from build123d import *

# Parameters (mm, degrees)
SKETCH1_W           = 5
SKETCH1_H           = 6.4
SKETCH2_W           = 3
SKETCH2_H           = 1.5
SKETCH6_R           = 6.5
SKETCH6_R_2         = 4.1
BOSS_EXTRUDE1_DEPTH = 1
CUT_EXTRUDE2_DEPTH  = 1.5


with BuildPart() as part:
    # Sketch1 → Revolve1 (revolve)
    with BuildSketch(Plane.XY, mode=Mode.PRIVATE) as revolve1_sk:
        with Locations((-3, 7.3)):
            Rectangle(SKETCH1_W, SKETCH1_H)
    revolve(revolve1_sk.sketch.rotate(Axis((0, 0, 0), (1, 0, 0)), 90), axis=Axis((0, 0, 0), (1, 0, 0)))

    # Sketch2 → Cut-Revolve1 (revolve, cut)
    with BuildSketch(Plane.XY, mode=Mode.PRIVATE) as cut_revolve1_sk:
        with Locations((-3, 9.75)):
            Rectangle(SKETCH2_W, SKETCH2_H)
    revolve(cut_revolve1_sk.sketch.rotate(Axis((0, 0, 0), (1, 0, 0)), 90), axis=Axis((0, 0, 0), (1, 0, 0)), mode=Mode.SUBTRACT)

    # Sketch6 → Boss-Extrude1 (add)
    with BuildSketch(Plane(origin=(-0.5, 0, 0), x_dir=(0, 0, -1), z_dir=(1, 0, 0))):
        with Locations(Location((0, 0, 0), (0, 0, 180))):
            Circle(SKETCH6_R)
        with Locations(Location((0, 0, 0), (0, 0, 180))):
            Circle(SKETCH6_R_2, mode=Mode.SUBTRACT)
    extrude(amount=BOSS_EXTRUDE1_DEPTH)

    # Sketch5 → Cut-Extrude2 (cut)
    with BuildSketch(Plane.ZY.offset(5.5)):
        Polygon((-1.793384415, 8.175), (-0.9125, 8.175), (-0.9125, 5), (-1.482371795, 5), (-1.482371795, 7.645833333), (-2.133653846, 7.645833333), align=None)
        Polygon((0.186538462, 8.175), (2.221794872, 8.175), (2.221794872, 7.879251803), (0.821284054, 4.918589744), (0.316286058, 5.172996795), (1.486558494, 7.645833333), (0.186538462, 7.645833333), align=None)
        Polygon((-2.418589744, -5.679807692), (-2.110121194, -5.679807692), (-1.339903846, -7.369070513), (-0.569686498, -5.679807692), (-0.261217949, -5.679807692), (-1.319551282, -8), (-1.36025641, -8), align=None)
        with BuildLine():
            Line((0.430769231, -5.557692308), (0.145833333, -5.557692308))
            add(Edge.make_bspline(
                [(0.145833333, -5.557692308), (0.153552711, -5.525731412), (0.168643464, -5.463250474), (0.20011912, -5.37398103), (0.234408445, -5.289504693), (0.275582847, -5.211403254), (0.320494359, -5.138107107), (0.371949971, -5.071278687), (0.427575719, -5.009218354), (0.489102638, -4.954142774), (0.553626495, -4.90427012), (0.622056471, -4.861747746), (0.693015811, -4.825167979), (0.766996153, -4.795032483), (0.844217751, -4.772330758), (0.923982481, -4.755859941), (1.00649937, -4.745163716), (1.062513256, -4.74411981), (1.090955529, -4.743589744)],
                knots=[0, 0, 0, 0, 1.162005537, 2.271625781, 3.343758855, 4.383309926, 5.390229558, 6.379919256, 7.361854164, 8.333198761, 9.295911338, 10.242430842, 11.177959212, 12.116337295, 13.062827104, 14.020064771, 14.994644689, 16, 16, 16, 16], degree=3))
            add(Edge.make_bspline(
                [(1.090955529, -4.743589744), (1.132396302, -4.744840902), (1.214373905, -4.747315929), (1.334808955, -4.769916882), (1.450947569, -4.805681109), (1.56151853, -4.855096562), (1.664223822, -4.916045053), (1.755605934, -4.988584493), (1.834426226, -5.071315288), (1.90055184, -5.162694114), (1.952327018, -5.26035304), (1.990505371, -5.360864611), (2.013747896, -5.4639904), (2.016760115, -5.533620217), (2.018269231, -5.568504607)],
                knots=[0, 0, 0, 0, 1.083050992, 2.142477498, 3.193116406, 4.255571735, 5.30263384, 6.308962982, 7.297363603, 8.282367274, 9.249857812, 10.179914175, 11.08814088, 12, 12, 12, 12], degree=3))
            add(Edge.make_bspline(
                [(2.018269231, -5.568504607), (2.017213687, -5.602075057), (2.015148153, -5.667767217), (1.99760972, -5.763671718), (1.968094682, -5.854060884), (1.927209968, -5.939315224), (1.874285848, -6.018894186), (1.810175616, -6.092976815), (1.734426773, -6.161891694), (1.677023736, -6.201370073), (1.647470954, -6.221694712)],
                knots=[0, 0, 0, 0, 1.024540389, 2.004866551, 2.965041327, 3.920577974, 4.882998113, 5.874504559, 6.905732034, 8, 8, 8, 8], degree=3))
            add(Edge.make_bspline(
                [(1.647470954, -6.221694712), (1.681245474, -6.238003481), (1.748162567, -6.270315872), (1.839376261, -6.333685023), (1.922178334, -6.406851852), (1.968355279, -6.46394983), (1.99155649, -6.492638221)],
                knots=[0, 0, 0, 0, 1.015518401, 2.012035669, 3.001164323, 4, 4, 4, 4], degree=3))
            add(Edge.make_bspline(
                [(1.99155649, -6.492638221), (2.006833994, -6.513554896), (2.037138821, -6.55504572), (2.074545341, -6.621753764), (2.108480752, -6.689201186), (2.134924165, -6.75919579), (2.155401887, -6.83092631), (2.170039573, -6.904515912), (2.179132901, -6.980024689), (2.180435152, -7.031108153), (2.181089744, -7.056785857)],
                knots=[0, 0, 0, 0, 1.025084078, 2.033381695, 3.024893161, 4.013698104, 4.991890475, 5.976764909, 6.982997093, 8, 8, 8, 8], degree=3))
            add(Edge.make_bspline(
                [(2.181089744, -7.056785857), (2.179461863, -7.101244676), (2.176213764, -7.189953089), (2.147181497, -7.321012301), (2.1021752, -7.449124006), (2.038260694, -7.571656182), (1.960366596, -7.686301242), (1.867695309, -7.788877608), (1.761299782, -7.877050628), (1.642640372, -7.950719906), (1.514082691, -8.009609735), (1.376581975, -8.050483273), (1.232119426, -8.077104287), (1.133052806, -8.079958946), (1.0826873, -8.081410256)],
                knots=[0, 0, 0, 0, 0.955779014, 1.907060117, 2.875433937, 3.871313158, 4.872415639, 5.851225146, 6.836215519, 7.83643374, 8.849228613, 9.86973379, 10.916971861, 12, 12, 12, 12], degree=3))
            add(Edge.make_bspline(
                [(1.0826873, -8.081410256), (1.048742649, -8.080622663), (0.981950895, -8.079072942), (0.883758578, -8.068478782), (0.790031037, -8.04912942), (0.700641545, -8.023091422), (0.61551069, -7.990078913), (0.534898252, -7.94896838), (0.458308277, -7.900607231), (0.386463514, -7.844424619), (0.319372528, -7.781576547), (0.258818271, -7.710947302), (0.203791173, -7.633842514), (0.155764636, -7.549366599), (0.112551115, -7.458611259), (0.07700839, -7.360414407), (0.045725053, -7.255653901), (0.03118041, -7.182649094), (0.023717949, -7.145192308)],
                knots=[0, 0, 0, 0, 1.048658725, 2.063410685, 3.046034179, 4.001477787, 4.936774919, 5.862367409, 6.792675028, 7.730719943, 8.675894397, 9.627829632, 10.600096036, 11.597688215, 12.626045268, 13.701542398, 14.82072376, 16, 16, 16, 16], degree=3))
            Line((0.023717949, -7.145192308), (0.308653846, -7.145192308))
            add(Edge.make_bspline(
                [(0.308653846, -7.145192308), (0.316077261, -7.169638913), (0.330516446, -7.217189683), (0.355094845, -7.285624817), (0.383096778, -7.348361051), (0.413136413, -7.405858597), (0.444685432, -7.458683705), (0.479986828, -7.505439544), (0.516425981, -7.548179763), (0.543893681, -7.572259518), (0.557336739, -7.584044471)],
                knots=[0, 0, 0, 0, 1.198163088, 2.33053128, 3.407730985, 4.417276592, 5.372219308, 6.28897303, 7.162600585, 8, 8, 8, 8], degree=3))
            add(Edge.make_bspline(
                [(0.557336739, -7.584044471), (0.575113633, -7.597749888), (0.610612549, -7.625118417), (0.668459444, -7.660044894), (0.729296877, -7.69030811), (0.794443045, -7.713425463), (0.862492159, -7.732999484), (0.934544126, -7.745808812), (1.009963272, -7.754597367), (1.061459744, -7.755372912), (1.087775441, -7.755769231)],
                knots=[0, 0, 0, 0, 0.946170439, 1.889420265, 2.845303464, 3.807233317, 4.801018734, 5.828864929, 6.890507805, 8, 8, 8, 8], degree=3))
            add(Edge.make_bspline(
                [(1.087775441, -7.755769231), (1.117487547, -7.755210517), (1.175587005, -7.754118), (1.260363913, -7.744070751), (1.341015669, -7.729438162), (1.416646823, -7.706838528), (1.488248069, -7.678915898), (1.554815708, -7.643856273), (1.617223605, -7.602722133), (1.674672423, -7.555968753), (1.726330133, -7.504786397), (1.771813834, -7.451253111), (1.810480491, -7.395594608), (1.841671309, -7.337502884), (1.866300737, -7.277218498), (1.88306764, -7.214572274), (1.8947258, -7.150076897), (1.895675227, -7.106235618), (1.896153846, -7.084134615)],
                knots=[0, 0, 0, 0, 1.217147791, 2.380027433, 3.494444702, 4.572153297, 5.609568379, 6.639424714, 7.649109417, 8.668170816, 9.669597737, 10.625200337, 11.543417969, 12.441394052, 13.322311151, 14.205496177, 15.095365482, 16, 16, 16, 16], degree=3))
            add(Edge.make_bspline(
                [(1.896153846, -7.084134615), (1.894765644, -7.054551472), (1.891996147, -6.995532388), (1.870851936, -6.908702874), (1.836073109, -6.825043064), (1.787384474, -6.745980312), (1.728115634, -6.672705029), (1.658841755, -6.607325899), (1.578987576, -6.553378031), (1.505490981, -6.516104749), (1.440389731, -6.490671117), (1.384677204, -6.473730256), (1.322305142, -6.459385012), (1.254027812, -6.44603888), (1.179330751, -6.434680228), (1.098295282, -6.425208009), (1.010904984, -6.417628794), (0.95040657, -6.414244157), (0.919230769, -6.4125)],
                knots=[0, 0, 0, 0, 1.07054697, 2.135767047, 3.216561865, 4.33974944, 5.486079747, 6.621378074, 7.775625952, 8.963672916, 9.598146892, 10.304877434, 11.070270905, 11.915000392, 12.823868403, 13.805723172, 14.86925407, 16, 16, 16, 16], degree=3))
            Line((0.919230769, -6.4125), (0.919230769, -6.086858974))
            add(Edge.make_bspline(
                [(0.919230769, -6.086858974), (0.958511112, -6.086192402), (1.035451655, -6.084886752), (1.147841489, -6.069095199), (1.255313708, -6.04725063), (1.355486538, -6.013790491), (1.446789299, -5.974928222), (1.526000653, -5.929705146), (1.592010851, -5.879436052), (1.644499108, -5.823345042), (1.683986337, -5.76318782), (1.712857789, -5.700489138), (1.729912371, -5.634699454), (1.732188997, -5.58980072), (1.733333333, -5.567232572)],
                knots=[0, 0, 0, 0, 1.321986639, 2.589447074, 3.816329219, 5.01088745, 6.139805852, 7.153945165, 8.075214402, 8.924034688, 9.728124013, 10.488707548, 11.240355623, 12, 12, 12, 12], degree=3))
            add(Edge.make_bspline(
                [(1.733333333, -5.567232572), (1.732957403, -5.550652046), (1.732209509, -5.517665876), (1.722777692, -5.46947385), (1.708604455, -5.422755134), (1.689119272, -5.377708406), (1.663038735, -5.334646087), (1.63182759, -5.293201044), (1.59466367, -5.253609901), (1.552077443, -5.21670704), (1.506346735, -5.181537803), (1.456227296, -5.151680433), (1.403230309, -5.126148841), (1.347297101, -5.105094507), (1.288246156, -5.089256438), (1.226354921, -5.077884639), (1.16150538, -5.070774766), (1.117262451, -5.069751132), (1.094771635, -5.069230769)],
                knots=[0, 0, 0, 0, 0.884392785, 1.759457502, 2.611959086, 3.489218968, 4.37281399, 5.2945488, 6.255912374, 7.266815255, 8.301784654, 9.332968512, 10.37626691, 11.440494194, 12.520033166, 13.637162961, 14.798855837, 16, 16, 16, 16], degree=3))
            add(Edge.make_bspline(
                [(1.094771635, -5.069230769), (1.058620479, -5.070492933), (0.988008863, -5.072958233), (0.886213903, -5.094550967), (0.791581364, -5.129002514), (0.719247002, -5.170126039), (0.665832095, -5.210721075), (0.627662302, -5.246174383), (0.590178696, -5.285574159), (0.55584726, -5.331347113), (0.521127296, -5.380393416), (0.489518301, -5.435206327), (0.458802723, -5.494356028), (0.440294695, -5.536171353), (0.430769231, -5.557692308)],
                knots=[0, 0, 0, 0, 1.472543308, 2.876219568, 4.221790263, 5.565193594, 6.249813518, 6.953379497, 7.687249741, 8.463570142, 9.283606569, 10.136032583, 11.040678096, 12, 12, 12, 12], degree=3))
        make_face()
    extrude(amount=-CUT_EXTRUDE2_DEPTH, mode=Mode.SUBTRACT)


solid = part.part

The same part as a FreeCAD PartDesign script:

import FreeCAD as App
import Part
import Sketcher

doc = App.newDocument("Part")
params = doc.addObject("Spreadsheet::Sheet", "Params")
for row, (alias, value) in enumerate([
    ("sketch1_width", "5 mm"),
    ("sketch1_height", "6.4 mm"),
    ("revolution_angle", "360 deg"),
    ("sketch2_width", "3 mm"),
    ("sketch2_height", "1.5 mm"),
    ("groove_angle", "360 deg"),
    ("sketch3_diameter", "13 mm"),
    ("sketch3_diameter2", "8.2 mm"),
    ("pad1_length", "1 mm"),
    ("pocket1_length", "1.5 mm"),
], start=1):
    params.set(f"A{row}", alias)
    params.set(f"B{row}", "=" + value)
    params.setAlias(f"B{row}", alias)

body = doc.addObject("PartDesign::Body", "Body")

sketch1 = doc.addObject("Sketcher::SketchObject", "Sketch")
body.addObject(sketch1)
sketch1.AttachmentSupport = (doc.XY_Plane, [""])
sketch1.MapMode = "FlatFace"
sketch1.addGeometry([
    Part.LineSegment(App.Vector(-6, 10, 0), App.Vector(-6, 4, 0)),
    Part.LineSegment(App.Vector(-6, 4, 0), App.Vector(0, 4, 0)),
    Part.LineSegment(App.Vector(0, 4, 0), App.Vector(0, 10, 0)),
    Part.LineSegment(App.Vector(0, 10, 0), App.Vector(-6, 10, 0)),
], False)
sketch1.addConstraint([
    Sketcher.Constraint("Coincident", 0, 2, 1, 1),
    Sketcher.Constraint("Coincident", 1, 2, 2, 1),
    Sketcher.Constraint("Coincident", 2, 2, 3, 1),
    Sketcher.Constraint("Coincident", 3, 2, 0, 1),
    Sketcher.Constraint("Vertical", 0),
    Sketcher.Constraint("Horizontal", 1),
    Sketcher.Constraint("Vertical", 2),
    Sketcher.Constraint("Horizontal", 3),
    Sketcher.Constraint("DistanceX", 1, 1, 1, 2, 5.0),
    Sketcher.Constraint("DistanceY", 0, 2, 0, 1, 6.4),
    Sketcher.Constraint("DistanceX", 0, 2, -1, 1, 5.5),
    Sketcher.Constraint("DistanceY", -1, 1, 0, 2, 4.1),
])
sketch1.setExpression("Constraints[8]", "Params.sketch1_width")
sketch1.setExpression("Constraints[9]", "Params.sketch1_height")
revolution = doc.addObject("PartDesign::Revolution", "Revolution")
body.addObject(revolution)
revolution.Profile = sketch1
revolution.ReferenceAxis = (sketch1, ["H_Axis"])
revolution.setExpression("Angle", "Params.revolution_angle")

sketch2 = doc.addObject("Sketcher::SketchObject", "Sketch001")
body.addObject(sketch2)
sketch2.AttachmentSupport = (doc.XY_Plane, [""])
sketch2.MapMode = "FlatFace"
sketch2.addGeometry([
    Part.LineSegment(App.Vector(-4.5, 10.5, 0), App.Vector(-4.5, 9, 0)),
    Part.LineSegment(App.Vector(-4.5, 9, 0), App.Vector(-1.5, 9, 0)),
    Part.LineSegment(App.Vector(-1.5, 9, 0), App.Vector(-1.5, 10.5, 0)),
    Part.LineSegment(App.Vector(-1.5, 10.5, 0), App.Vector(-4.5, 10.5, 0)),
], False)
sketch2.addConstraint([
    Sketcher.Constraint("Coincident", 0, 2, 1, 1),
    Sketcher.Constraint("Coincident", 1, 2, 2, 1),
    Sketcher.Constraint("Coincident", 2, 2, 3, 1),
    Sketcher.Constraint("Coincident", 3, 2, 0, 1),
    Sketcher.Constraint("Vertical", 0),
    Sketcher.Constraint("Horizontal", 1),
    Sketcher.Constraint("Vertical", 2),
    Sketcher.Constraint("Horizontal", 3),
    Sketcher.Constraint("DistanceX", 1, 1, 1, 2, 3.0),
    Sketcher.Constraint("DistanceY", 0, 2, 0, 1, 1.5),
    Sketcher.Constraint("DistanceY", -1, 1, 0, 2, 9.0),
    Sketcher.Constraint("DistanceX", 0, 2, -1, 1, 4.5),
])
sketch2.setExpression("Constraints[8]", "Params.sketch2_width")
sketch2.setExpression("Constraints[9]", "Params.sketch2_height")
groove = doc.addObject("PartDesign::Groove", "Groove")
body.addObject(groove)
groove.Profile = sketch2
groove.ReferenceAxis = (sketch2, ["H_Axis"])
groove.setExpression("Angle", "Params.groove_angle")

sketch3 = doc.addObject("Sketcher::SketchObject", "Sketch002")
body.addObject(sketch3)
sketch3.AttachmentSupport = (doc.YZ_Plane, [""])
sketch3.MapMode = "FlatFace"
sketch3.AttachmentOffset = App.Placement(App.Vector(0, 0, -0.5), App.Rotation())
sketch3.addGeometry([
    Part.Circle(App.Vector(0, 0, 0), App.Vector(0, 0, 1), 6.5),
    Part.Circle(App.Vector(0, 0, 0), App.Vector(0, 0, 1), 4.1),
], False)
sketch3.addConstraint([
    Sketcher.Constraint("Coincident", 0, 3, -1, 1),
    Sketcher.Constraint("Coincident", 1, 3, -1, 1),
    Sketcher.Constraint("Diameter", 0, 13.0),
    Sketcher.Constraint("Diameter", 1, 8.2),
])
sketch3.setExpression("Constraints[2]", "Params.sketch3_diameter")
sketch3.setExpression("Constraints[3]", "Params.sketch3_diameter2")
pad1 = doc.addObject("PartDesign::Pad", "Pad")
body.addObject(pad1)
pad1.Profile = sketch3
pad1.setExpression("Length", "Params.pad1_length")

sketch4 = doc.addObject("Sketcher::SketchObject", "Sketch003")
body.addObject(sketch4)
sketch4.AttachmentSupport = (doc.YZ_Plane, [""])
sketch4.MapMode = "FlatFace"
sketch4.AttachmentOffset = App.Placement(App.Vector(0, 0, -5.5), App.Rotation())
sketch4.addGeometry([
    Part.LineSegment(App.Vector(8.175, -0.9125, 0), App.Vector(8.175, -1.793384, 0)),
    Part.LineSegment(App.Vector(8.175, -1.793384, 0), App.Vector(7.645833, -2.133654, 0)),
    Part.LineSegment(App.Vector(7.645833, -2.133654, 0), App.Vector(7.645833, -1.482372, 0)),
    Part.LineSegment(App.Vector(7.645833, -1.482372, 0), App.Vector(5, -1.482372, 0)),
    Part.LineSegment(App.Vector(5, -1.482372, 0), App.Vector(5, -0.9125, 0)),
    Part.LineSegment(App.Vector(5, -0.9125, 0), App.Vector(8.175, -0.9125, 0)),
    Part.LineSegment(App.Vector(8.175, 2.221795, 0), App.Vector(8.175, 0.186538, 0)),
    Part.LineSegment(App.Vector(8.175, 0.186538, 0), App.Vector(7.645833, 0.186538, 0)),
    Part.LineSegment(App.Vector(7.645833, 0.186538, 0), App.Vector(7.645833, 1.486558, 0)),
    Part.LineSegment(App.Vector(7.645833, 1.486558, 0), App.Vector(5.172997, 0.316286, 0)),
    Part.LineSegment(App.Vector(5.172997, 0.316286, 0), App.Vector(4.91859, 0.821284, 0)),
    Part.LineSegment(App.Vector(4.91859, 0.821284, 0), App.Vector(7.879252, 2.221795, 0)),
    Part.LineSegment(App.Vector(7.879252, 2.221795, 0), App.Vector(8.175, 2.221795, 0)),
    Part.LineSegment(App.Vector(-5.679808, -2.110121, 0), App.Vector(-5.679808, -2.41859, 0)),
    Part.LineSegment(App.Vector(-5.679808, -2.41859, 0), App.Vector(-8, -1.360256, 0)),
    Part.LineSegment(App.Vector(-8, -1.360256, 0), App.Vector(-8, -1.319551, 0)),
    Part.LineSegment(App.Vector(-8, -1.319551, 0), App.Vector(-5.679808, -0.261218, 0)),
    Part.LineSegment(App.Vector(-5.679808, -0.261218, 0), App.Vector(-5.679808, -0.569686, 0)),
    Part.LineSegment(App.Vector(-5.679808, -0.569686, 0), App.Vector(-7.369071, -1.339904, 0)),
    Part.LineSegment(App.Vector(-7.369071, -1.339904, 0), App.Vector(-5.679808, -2.110121, 0)),
    Part.LineSegment(App.Vector(-5.557692, 0.145833, 0), App.Vector(-5.557692, 0.430769, 0)),
    Part.BSplineCurve([App.Vector(-5.069231, 1.094772, 0), App.Vector(-5.070493, 1.05862, 0), App.Vector(-5.072958, 0.988009, 0), App.Vector(-5.094551, 0.886214, 0), App.Vector(-5.129003, 0.791581, 0), App.Vector(-5.170126, 0.719247, 0), App.Vector(-5.210721, 0.665832, 0), App.Vector(-5.246174, 0.627662, 0), App.Vector(-5.285574, 0.590179, 0), App.Vector(-5.331347, 0.555847, 0), App.Vector(-5.380393, 0.521127, 0), App.Vector(-5.435206, 0.489518, 0), App.Vector(-5.494356, 0.458803, 0), App.Vector(-5.536171, 0.440295, 0), App.Vector(-5.557692, 0.430769, 0)], [4, 1, 1, 1, 1, 1, 1, 1, 1, 1, 1, 1, 4], [0, 1.472543308, 2.876219568, 4.221790263, 5.565193594, 6.249813518, 6.953379497, 7.687249741, 8.463570142, 9.283606569, 10.136032583, 11.040678096, 12], False, 3, [1, 1, 1, 1, 1, 1, 1, 1, 1, 1, 1, 1, 1, 1, 1], False),
    Part.BSplineCurve([App.Vector(-5.567233, 1.733333, 0), App.Vector(-5.550652, 1.732957, 0), App.Vector(-5.517666, 1.73221, 0), App.Vector(-5.469474, 1.722778, 0), App.Vector(-5.422755, 1.708604, 0), App.Vector(-5.377708, 1.689119, 0), App.Vector(-5.334646, 1.663039, 0), App.Vector(-5.293201, 1.631828, 0), App.Vector(-5.25361, 1.594664, 0), App.Vector(-5.216707, 1.552077, 0), App.Vector(-5.181538, 1.506347, 0), App.Vector(-5.15168, 1.456227, 0), App.Vector(-5.126149, 1.40323, 0), App.Vector(-5.105095, 1.347297, 0), App.Vector(-5.089256, 1.288246, 0), App.Vector(-5.077885, 1.226355, 0), App.Vector(-5.070775, 1.161505, 0), App.Vector(-5.069751, 1.117262, 0), App.Vector(-5.069231, 1.094772, 0)], [4, 1, 1, 1, 1, 1, 1, 1, 1, 1, 1, 1, 1, 1, 1, 1, 4], [0, 0.884392785, 1.759457502, 2.611959086, 3.489218968, 4.37281399, 5.2945488, 6.255912374, 7.266815255, 8.301784654, 9.332968512, 10.37626691, 11.440494194, 12.520033166, 13.637162961, 14.798855837, 16], False, 3, [1, 1, 1, 1, 1, 1, 1, 1, 1, 1, 1, 1, 1, 1, 1, 1, 1, 1, 1], False),
    Part.BSplineCurve([App.Vector(-6.086859, 0.919231, 0), App.Vector(-6.086192, 0.958511, 0), App.Vector(-6.084887, 1.035452, 0), App.Vector(-6.069095, 1.147841, 0), App.Vector(-6.047251, 1.255314, 0), App.Vector(-6.01379, 1.355487, 0), App.Vector(-5.974928, 1.446789, 0), App.Vector(-5.929705, 1.526001, 0), App.Vector(-5.879436, 1.592011, 0), App.Vector(-5.823345, 1.644499, 0), App.Vector(-5.763188, 1.683986, 0), App.Vector(-5.700489, 1.712858, 0), App.Vector(-5.634699, 1.729912, 0), App.Vector(-5.589801, 1.732189, 0), App.Vector(-5.567233, 1.733333, 0)], [4, 1, 1, 1, 1, 1, 1, 1, 1, 1, 1, 1, 4], [0, 1.321986639, 2.589447074, 3.816329219, 5.01088745, 6.139805852, 7.153945165, 8.075214402, 8.924034688, 9.728124013, 10.488707548, 11.240355623, 12], False, 3, [1, 1, 1, 1, 1, 1, 1, 1, 1, 1, 1, 1, 1, 1, 1], False),
    Part.LineSegment(App.Vector(-6.086859, 0.919231, 0), App.Vector(-6.4125, 0.919231, 0)),
    Part.BSplineCurve([App.Vector(-7.084135, 1.896154, 0), App.Vector(-7.054551, 1.894766, 0), App.Vector(-6.995532, 1.891996, 0), App.Vector(-6.908703, 1.870852, 0), App.Vector(-6.825043, 1.836073, 0), App.Vector(-6.74598, 1.787384, 0), App.Vector(-6.672705, 1.728116, 0), App.Vector(-6.607326, 1.658842, 0), App.Vector(-6.553378, 1.578988, 0), App.Vector(-6.516105, 1.505491, 0), App.Vector(-6.490671, 1.44039, 0), App.Vector(-6.47373, 1.384677, 0), App.Vector(-6.459385, 1.322305, 0), App.Vector(-6.446039, 1.254028, 0), App.Vector(-6.43468, 1.179331, 0), App.Vector(-6.425208, 1.098295, 0), App.Vector(-6.417629, 1.010905, 0), App.Vector(-6.414244, 0.950407, 0), App.Vector(-6.4125, 0.919231, 0)], [4, 1, 1, 1, 1, 1, 1, 1, 1, 1, 1, 1, 1, 1, 1, 1, 4], [0, 1.07054697, 2.135767047, 3.216561865, 4.33974944, 5.486079747, 6.621378074, 7.775625952, 8.963672916, 9.598146892, 10.304877434, 11.070270905, 11.915000392, 12.823868403, 13.805723172, 14.86925407, 16], False, 3, [1, 1, 1, 1, 1, 1, 1, 1, 1, 1, 1, 1, 1, 1, 1, 1, 1, 1, 1], False),
    Part.BSplineCurve([App.Vector(-7.755769, 1.087775, 0), App.Vector(-7.755211, 1.117488, 0), App.Vector(-7.754118, 1.175587, 0), App.Vector(-7.744071, 1.260364, 0), App.Vector(-7.729438, 1.341016, 0), App.Vector(-7.706839, 1.416647, 0), App.Vector(-7.678916, 1.488248, 0), App.Vector(-7.643856, 1.554816, 0), App.Vector(-7.602722, 1.617224, 0), App.Vector(-7.555969, 1.674672, 0), App.Vector(-7.504786, 1.72633, 0), App.Vector(-7.451253, 1.771814, 0), App.Vector(-7.395595, 1.81048, 0), App.Vector(-7.337503, 1.841671, 0), App.Vector(-7.277218, 1.866301, 0), App.Vector(-7.214572, 1.883068, 0), App.Vector(-7.150077, 1.894726, 0), App.Vector(-7.106236, 1.895675, 0), App.Vector(-7.084135, 1.896154, 0)], [4, 1, 1, 1, 1, 1, 1, 1, 1, 1, 1, 1, 1, 1, 1, 1, 4], [0, 1.217147791, 2.380027433, 3.494444702, 4.572153297, 5.609568379, 6.639424714, 7.649109417, 8.668170816, 9.669597737, 10.625200337, 11.543417969, 12.441394052, 13.322311151, 14.205496177, 15.095365482, 16], False, 3, [1, 1, 1, 1, 1, 1, 1, 1, 1, 1, 1, 1, 1, 1, 1, 1, 1, 1, 1], False),
    Part.BSplineCurve([App.Vector(-7.584044, 0.557337, 0), App.Vector(-7.59775, 0.575114, 0), App.Vector(-7.625118, 0.610613, 0), App.Vector(-7.660045, 0.668459, 0), App.Vector(-7.690308, 0.729297, 0), App.Vector(-7.713425, 0.794443, 0), App.Vector(-7.732999, 0.862492, 0), App.Vector(-7.745809, 0.934544, 0), App.Vector(-7.754597, 1.009963, 0), App.Vector(-7.755373, 1.06146, 0), App.Vector(-7.755769, 1.087775, 0)], [4, 1, 1, 1, 1, 1, 1, 1, 4], [0, 0.946170439, 1.889420265, 2.845303464, 3.807233317, 4.801018734, 5.828864929, 6.890507805, 8], False, 3, [1, 1, 1, 1, 1, 1, 1, 1, 1, 1, 1], False),
    Part.BSplineCurve([App.Vector(-7.145192, 0.308654, 0), App.Vector(-7.169639, 0.316077, 0), App.Vector(-7.21719, 0.330516, 0), App.Vector(-7.285625, 0.355095, 0), App.Vector(-7.348361, 0.383097, 0), App.Vector(-7.405859, 0.413136, 0), App.Vector(-7.458684, 0.444685, 0), App.Vector(-7.50544, 0.479987, 0), App.Vector(-7.54818, 0.516426, 0), App.Vector(-7.57226, 0.543894, 0), App.Vector(-7.584044, 0.557337, 0)], [4, 1, 1, 1, 1, 1, 1, 1, 4], [0, 1.198163088, 2.33053128, 3.407730985, 4.417276592, 5.372219308, 6.28897303, 7.162600585, 8], False, 3, [1, 1, 1, 1, 1, 1, 1, 1, 1, 1, 1], False),
    Part.LineSegment(App.Vector(-7.145192, 0.308654, 0), App.Vector(-7.145192, 0.023718, 0)),
    Part.BSplineCurve([App.Vector(-8.08141, 1.082687, 0), App.Vector(-8.080623, 1.048743, 0), App.Vector(-8.079073, 0.981951, 0), App.Vector(-8.068479, 0.883759, 0), App.Vector(-8.049129, 0.790031, 0), App.Vector(-8.023091, 0.700642, 0), App.Vector(-7.990079, 0.615511, 0), App.Vector(-7.948968, 0.534898, 0), App.Vector(-7.900607, 0.458308, 0), App.Vector(-7.844425, 0.386464, 0), App.Vector(-7.781577, 0.319373, 0), App.Vector(-7.710947, 0.258818, 0), App.Vector(-7.633843, 0.203791, 0), App.Vector(-7.549367, 0.155765, 0), App.Vector(-7.458611, 0.112551, 0), App.Vector(-7.360414, 0.077008, 0), App.Vector(-7.255654, 0.045725, 0), App.Vector(-7.182649, 0.03118, 0), App.Vector(-7.145192, 0.023718, 0)], [4, 1, 1, 1, 1, 1, 1, 1, 1, 1, 1, 1, 1, 1, 1, 1, 4], [0, 1.048658725, 2.063410685, 3.046034179, 4.001477787, 4.936774919, 5.862367409, 6.792675028, 7.730719943, 8.675894397, 9.627829632, 10.600096036, 11.597688215, 12.626045268, 13.701542398, 14.82072376, 16], False, 3, [1, 1, 1, 1, 1, 1, 1, 1, 1, 1, 1, 1, 1, 1, 1, 1, 1, 1, 1], False),
    Part.BSplineCurve([App.Vector(-7.056786, 2.18109, 0), App.Vector(-7.101245, 2.179462, 0), App.Vector(-7.189953, 2.176214, 0), App.Vector(-7.321012, 2.147181, 0), App.Vector(-7.449124, 2.102175, 0), App.Vector(-7.571656, 2.038261, 0), App.Vector(-7.686301, 1.960367, 0), App.Vector(-7.788878, 1.867695, 0), App.Vector(-7.877051, 1.7613, 0), App.Vector(-7.95072, 1.64264, 0), App.Vector(-8.00961, 1.514083, 0), App.Vector(-8.050483, 1.376582, 0), App.Vector(-8.077104, 1.232119, 0), App.Vector(-8.079959, 1.133053, 0), App.Vector(-8.08141, 1.082687, 0)], [4, 1, 1, 1, 1, 1, 1, 1, 1, 1, 1, 1, 4], [0, 0.955779014, 1.907060117, 2.875433937, 3.871313158, 4.872415639, 5.851225146, 6.836215519, 7.83643374, 8.849228613, 9.86973379, 10.916971861, 12], False, 3, [1, 1, 1, 1, 1, 1, 1, 1, 1, 1, 1, 1, 1, 1, 1], False),
    Part.BSplineCurve([App.Vector(-6.492638, 1.991556, 0), App.Vector(-6.513555, 2.006834, 0), App.Vector(-6.555046, 2.037139, 0), App.Vector(-6.621754, 2.074545, 0), App.Vector(-6.689201, 2.108481, 0), App.Vector(-6.759196, 2.134924, 0), App.Vector(-6.830926, 2.155402, 0), App.Vector(-6.904516, 2.17004, 0), App.Vector(-6.980025, 2.179133, 0), App.Vector(-7.031108, 2.180435, 0), App.Vector(-7.056786, 2.18109, 0)], [4, 1, 1, 1, 1, 1, 1, 1, 4], [0, 1.025084078, 2.033381695, 3.024893161, 4.013698104, 4.991890475, 5.976764909, 6.982997093, 8], False, 3, [1, 1, 1, 1, 1, 1, 1, 1, 1, 1, 1], False),
    Part.BSplineCurve([App.Vector(-6.221695, 1.647471, 0), App.Vector(-6.238003, 1.681245, 0), App.Vector(-6.270316, 1.748163, 0), App.Vector(-6.333685, 1.839376, 0), App.Vector(-6.406852, 1.922178, 0), App.Vector(-6.46395, 1.968355, 0), App.Vector(-6.492638, 1.991556, 0)], [4, 1, 1, 1, 4], [0, 1.015518401, 2.012035669, 3.001164323, 4], False, 3, [1, 1, 1, 1, 1, 1, 1], False),
    Part.BSplineCurve([App.Vector(-5.568505, 2.018269, 0), App.Vector(-5.602075, 2.017214, 0), App.Vector(-5.667767, 2.015148, 0), App.Vector(-5.763672, 1.99761, 0), App.Vector(-5.854061, 1.968095, 0), App.Vector(-5.939315, 1.92721, 0), App.Vector(-6.018894, 1.874286, 0), App.Vector(-6.092977, 1.810176, 0), App.Vector(-6.161892, 1.734427, 0), App.Vector(-6.20137, 1.677024, 0), App.Vector(-6.221695, 1.647471, 0)], [4, 1, 1, 1, 1, 1, 1, 1, 4], [0, 1.024540389, 2.004866551, 2.965041327, 3.920577974, 4.882998113, 5.874504559, 6.905732034, 8], False, 3, [1, 1, 1, 1, 1, 1, 1, 1, 1, 1, 1], False),
    Part.BSplineCurve([App.Vector(-4.74359, 1.090956, 0), App.Vector(-4.744841, 1.132396, 0), App.Vector(-4.747316, 1.214374, 0), App.Vector(-4.769917, 1.334809, 0), App.Vector(-4.805681, 1.450948, 0), App.Vector(-4.855097, 1.561519, 0), App.Vector(-4.916045, 1.664224, 0), App.Vector(-4.988584, 1.755606, 0), App.Vector(-5.071315, 1.834426, 0), App.Vector(-5.162694, 1.900552, 0), App.Vector(-5.260353, 1.952327, 0), App.Vector(-5.360865, 1.990505, 0), App.Vector(-5.46399, 2.013748, 0), App.Vector(-5.53362, 2.01676, 0), App.Vector(-5.568505, 2.018269, 0)], [4, 1, 1, 1, 1, 1, 1, 1, 1, 1, 1, 1, 4], [0, 1.083050992, 2.142477498, 3.193116406, 4.255571735, 5.30263384, 6.308962982, 7.297363603, 8.282367274, 9.249857812, 10.179914175, 11.08814088, 12], False, 3, [1, 1, 1, 1, 1, 1, 1, 1, 1, 1, 1, 1, 1, 1, 1], False),
    Part.BSplineCurve([App.Vector(-5.557692, 0.145833, 0), App.Vector(-5.525731, 0.153553, 0), App.Vector(-5.46325, 0.168643, 0), App.Vector(-5.373981, 0.200119, 0), App.Vector(-5.289505, 0.234408, 0), App.Vector(-5.211403, 0.275583, 0), App.Vector(-5.138107, 0.320494, 0), App.Vector(-5.071279, 0.37195, 0), App.Vector(-5.009218, 0.427576, 0), App.Vector(-4.954143, 0.489103, 0), App.Vector(-4.90427, 0.553626, 0), App.Vector(-4.861748, 0.622056, 0), App.Vector(-4.825168, 0.693016, 0), App.Vector(-4.795032, 0.766996, 0), App.Vector(-4.772331, 0.844218, 0), App.Vector(-4.75586, 0.923982, 0), App.Vector(-4.745164, 1.006499, 0), App.Vector(-4.74412, 1.062513, 0), App.Vector(-4.74359, 1.090956, 0)], [4, 1, 1, 1, 1, 1, 1, 1, 1, 1, 1, 1, 1, 1, 1, 1, 4], [0, 1.162005537, 2.271625781, 3.343758855, 4.383309926, 5.390229558, 6.379919256, 7.361854164, 8.333198761, 9.295911338, 10.242430842, 11.177959212, 12.116337295, 13.062827104, 14.020064771, 14.994644689, 16], False, 3, [1, 1, 1, 1, 1, 1, 1, 1, 1, 1, 1, 1, 1, 1, 1, 1, 1, 1, 1], False),
], False)
sketch4.addConstraint([
    Sketcher.Constraint("Block", 21),
    Sketcher.Constraint("Block", 22),
    Sketcher.Constraint("Block", 23),
    Sketcher.Constraint("Block", 25),
    Sketcher.Constraint("Block", 26),
    Sketcher.Constraint("Block", 27),
    Sketcher.Constraint("Block", 28),
    Sketcher.Constraint("Block", 30),
    Sketcher.Constraint("Block", 31),
    Sketcher.Constraint("Block", 32),
    Sketcher.Constraint("Block", 33),
    Sketcher.Constraint("Block", 34),
    Sketcher.Constraint("Block", 35),
    Sketcher.Constraint("Block", 36),
    Sketcher.Constraint("Coincident", 0, 2, 1, 1),
    Sketcher.Constraint("Coincident", 1, 2, 2, 1),
    Sketcher.Constraint("Coincident", 2, 2, 3, 1),
    Sketcher.Constraint("Coincident", 3, 2, 4, 1),
    Sketcher.Constraint("Coincident", 4, 2, 5, 1),
    Sketcher.Constraint("Coincident", 5, 2, 0, 1),
    Sketcher.Constraint("Coincident", 6, 2, 7, 1),
    Sketcher.Constraint("Coincident", 7, 2, 8, 1),
    Sketcher.Constraint("Coincident", 8, 2, 9, 1),
    Sketcher.Constraint("Coincident", 9, 2, 10, 1),
    Sketcher.Constraint("Coincident", 10, 2, 11, 1),
    Sketcher.Constraint("Coincident", 11, 2, 12, 1),
    Sketcher.Constraint("Coincident", 12, 2, 6, 1),
    Sketcher.Constraint("Coincident", 13, 2, 14, 1),
    Sketcher.Constraint("Coincident", 14, 2, 15, 1),
    Sketcher.Constraint("Coincident", 15, 2, 16, 1),
    Sketcher.Constraint("Coincident", 16, 2, 17, 1),
    Sketcher.Constraint("Coincident", 17, 2, 18, 1),
    Sketcher.Constraint("Coincident", 18, 2, 19, 1),
    Sketcher.Constraint("Coincident", 19, 2, 13, 1),
    Sketcher.Constraint("Coincident", 20, 2, 21, 2),
    Sketcher.Constraint("Coincident", 23, 1, 24, 1),
    Sketcher.Constraint("Coincident", 24, 2, 25, 2),
    Sketcher.Constraint("Coincident", 28, 1, 29, 1),
    Sketcher.Constraint("Coincident", 29, 2, 30, 2),
    Sketcher.Constraint("Coincident", 36, 1, 20, 1),
    Sketcher.Constraint("Vertical", 0),
    Sketcher.Constraint("Vertical", 2),
    Sketcher.Constraint("Horizontal", 3),
    Sketcher.Constraint("Vertical", 4),
    Sketcher.Constraint("Horizontal", 5),
    Sketcher.Constraint("Vertical", 6),
    Sketcher.Constraint("Horizontal", 7),
    Sketcher.Constraint("Vertical", 8),
    Sketcher.Constraint("Horizontal", 12),
    Sketcher.Constraint("Vertical", 13),
    Sketcher.Constraint("Vertical", 15),
    Sketcher.Constraint("Vertical", 17),
    Sketcher.Constraint("Vertical", 5, 2, 6, 2),
    Sketcher.Constraint("Vertical", 2, 2, 7, 2),
    Sketcher.Constraint("Vertical", 13, 2, 16, 2),
    Sketcher.Constraint("Equal", 13, 17),
    Sketcher.Constraint("Equal", 14, 16),
    Sketcher.Constraint("Equal", 18, 19),
    Sketcher.Constraint("DistanceX", -1, 1, 3, 2, 5.0),
    Sketcher.Constraint("DistanceX", 14, 2, -1, 1, 8.0),
    Sketcher.Constraint("DistanceX", 5, 1, 5, 2, 3.175),
    Sketcher.Constraint("DistanceX", 12, 1, 12, 2, 0.295748),
    Sketcher.Constraint("DistanceY", 4, 1, 4, 2, 0.569872),
    Sketcher.Constraint("DistanceY", 8, 1, 8, 2, 1.30002),
    Sketcher.Constraint("DistanceY", 13, 2, 13, 1, 0.308469),
    Sketcher.Constraint("DistanceY", 4, 2, -1, 1, 0.9125),
    Sketcher.Constraint("Distance", 10, 0.565461),
    Sketcher.Constraint("Distance", 14, 2.550169),
    Sketcher.Constraint("DistanceX", 3, 2, 3, 1, 2.645833),
    Sketcher.Constraint("DistanceY", 0, 2, 0, 1, 0.880884),
    Sketcher.Constraint("DistanceY", 2, 1, 2, 2, 0.651282),
    Sketcher.Constraint("DistanceY", 6, 2, 6, 1, 2.035256),
    Sketcher.Constraint("DistanceY", 15, 1, 15, 2, 0.040705),
    Sketcher.Constraint("DistanceY", -1, 1, 6, 2, 0.186538),
    Sketcher.Constraint("DistanceX", -1, 1, 10, 2, 4.91859),
    Sketcher.Constraint("DistanceY", 13, 2, -1, 1, 2.41859),
    Sketcher.Constraint("DistanceY", 15, 2, -1, 1, 1.319551),
    Sketcher.Constraint("DistanceX", 18, 2, -1, 1, 7.369071),
    Sketcher.Constraint("DistanceY", 10, 2, 11, 2, 1.400511),
    Sketcher.Constraint("Distance", 9, 2.735774),
])
pocket1 = doc.addObject("PartDesign::Pocket", "Pocket")
body.addObject(pocket1)
pocket1.Profile = sketch4
pocket1.setExpression("Length", "Params.pocket1_length")
pocket1.Reversed = True

doc.recompute()
